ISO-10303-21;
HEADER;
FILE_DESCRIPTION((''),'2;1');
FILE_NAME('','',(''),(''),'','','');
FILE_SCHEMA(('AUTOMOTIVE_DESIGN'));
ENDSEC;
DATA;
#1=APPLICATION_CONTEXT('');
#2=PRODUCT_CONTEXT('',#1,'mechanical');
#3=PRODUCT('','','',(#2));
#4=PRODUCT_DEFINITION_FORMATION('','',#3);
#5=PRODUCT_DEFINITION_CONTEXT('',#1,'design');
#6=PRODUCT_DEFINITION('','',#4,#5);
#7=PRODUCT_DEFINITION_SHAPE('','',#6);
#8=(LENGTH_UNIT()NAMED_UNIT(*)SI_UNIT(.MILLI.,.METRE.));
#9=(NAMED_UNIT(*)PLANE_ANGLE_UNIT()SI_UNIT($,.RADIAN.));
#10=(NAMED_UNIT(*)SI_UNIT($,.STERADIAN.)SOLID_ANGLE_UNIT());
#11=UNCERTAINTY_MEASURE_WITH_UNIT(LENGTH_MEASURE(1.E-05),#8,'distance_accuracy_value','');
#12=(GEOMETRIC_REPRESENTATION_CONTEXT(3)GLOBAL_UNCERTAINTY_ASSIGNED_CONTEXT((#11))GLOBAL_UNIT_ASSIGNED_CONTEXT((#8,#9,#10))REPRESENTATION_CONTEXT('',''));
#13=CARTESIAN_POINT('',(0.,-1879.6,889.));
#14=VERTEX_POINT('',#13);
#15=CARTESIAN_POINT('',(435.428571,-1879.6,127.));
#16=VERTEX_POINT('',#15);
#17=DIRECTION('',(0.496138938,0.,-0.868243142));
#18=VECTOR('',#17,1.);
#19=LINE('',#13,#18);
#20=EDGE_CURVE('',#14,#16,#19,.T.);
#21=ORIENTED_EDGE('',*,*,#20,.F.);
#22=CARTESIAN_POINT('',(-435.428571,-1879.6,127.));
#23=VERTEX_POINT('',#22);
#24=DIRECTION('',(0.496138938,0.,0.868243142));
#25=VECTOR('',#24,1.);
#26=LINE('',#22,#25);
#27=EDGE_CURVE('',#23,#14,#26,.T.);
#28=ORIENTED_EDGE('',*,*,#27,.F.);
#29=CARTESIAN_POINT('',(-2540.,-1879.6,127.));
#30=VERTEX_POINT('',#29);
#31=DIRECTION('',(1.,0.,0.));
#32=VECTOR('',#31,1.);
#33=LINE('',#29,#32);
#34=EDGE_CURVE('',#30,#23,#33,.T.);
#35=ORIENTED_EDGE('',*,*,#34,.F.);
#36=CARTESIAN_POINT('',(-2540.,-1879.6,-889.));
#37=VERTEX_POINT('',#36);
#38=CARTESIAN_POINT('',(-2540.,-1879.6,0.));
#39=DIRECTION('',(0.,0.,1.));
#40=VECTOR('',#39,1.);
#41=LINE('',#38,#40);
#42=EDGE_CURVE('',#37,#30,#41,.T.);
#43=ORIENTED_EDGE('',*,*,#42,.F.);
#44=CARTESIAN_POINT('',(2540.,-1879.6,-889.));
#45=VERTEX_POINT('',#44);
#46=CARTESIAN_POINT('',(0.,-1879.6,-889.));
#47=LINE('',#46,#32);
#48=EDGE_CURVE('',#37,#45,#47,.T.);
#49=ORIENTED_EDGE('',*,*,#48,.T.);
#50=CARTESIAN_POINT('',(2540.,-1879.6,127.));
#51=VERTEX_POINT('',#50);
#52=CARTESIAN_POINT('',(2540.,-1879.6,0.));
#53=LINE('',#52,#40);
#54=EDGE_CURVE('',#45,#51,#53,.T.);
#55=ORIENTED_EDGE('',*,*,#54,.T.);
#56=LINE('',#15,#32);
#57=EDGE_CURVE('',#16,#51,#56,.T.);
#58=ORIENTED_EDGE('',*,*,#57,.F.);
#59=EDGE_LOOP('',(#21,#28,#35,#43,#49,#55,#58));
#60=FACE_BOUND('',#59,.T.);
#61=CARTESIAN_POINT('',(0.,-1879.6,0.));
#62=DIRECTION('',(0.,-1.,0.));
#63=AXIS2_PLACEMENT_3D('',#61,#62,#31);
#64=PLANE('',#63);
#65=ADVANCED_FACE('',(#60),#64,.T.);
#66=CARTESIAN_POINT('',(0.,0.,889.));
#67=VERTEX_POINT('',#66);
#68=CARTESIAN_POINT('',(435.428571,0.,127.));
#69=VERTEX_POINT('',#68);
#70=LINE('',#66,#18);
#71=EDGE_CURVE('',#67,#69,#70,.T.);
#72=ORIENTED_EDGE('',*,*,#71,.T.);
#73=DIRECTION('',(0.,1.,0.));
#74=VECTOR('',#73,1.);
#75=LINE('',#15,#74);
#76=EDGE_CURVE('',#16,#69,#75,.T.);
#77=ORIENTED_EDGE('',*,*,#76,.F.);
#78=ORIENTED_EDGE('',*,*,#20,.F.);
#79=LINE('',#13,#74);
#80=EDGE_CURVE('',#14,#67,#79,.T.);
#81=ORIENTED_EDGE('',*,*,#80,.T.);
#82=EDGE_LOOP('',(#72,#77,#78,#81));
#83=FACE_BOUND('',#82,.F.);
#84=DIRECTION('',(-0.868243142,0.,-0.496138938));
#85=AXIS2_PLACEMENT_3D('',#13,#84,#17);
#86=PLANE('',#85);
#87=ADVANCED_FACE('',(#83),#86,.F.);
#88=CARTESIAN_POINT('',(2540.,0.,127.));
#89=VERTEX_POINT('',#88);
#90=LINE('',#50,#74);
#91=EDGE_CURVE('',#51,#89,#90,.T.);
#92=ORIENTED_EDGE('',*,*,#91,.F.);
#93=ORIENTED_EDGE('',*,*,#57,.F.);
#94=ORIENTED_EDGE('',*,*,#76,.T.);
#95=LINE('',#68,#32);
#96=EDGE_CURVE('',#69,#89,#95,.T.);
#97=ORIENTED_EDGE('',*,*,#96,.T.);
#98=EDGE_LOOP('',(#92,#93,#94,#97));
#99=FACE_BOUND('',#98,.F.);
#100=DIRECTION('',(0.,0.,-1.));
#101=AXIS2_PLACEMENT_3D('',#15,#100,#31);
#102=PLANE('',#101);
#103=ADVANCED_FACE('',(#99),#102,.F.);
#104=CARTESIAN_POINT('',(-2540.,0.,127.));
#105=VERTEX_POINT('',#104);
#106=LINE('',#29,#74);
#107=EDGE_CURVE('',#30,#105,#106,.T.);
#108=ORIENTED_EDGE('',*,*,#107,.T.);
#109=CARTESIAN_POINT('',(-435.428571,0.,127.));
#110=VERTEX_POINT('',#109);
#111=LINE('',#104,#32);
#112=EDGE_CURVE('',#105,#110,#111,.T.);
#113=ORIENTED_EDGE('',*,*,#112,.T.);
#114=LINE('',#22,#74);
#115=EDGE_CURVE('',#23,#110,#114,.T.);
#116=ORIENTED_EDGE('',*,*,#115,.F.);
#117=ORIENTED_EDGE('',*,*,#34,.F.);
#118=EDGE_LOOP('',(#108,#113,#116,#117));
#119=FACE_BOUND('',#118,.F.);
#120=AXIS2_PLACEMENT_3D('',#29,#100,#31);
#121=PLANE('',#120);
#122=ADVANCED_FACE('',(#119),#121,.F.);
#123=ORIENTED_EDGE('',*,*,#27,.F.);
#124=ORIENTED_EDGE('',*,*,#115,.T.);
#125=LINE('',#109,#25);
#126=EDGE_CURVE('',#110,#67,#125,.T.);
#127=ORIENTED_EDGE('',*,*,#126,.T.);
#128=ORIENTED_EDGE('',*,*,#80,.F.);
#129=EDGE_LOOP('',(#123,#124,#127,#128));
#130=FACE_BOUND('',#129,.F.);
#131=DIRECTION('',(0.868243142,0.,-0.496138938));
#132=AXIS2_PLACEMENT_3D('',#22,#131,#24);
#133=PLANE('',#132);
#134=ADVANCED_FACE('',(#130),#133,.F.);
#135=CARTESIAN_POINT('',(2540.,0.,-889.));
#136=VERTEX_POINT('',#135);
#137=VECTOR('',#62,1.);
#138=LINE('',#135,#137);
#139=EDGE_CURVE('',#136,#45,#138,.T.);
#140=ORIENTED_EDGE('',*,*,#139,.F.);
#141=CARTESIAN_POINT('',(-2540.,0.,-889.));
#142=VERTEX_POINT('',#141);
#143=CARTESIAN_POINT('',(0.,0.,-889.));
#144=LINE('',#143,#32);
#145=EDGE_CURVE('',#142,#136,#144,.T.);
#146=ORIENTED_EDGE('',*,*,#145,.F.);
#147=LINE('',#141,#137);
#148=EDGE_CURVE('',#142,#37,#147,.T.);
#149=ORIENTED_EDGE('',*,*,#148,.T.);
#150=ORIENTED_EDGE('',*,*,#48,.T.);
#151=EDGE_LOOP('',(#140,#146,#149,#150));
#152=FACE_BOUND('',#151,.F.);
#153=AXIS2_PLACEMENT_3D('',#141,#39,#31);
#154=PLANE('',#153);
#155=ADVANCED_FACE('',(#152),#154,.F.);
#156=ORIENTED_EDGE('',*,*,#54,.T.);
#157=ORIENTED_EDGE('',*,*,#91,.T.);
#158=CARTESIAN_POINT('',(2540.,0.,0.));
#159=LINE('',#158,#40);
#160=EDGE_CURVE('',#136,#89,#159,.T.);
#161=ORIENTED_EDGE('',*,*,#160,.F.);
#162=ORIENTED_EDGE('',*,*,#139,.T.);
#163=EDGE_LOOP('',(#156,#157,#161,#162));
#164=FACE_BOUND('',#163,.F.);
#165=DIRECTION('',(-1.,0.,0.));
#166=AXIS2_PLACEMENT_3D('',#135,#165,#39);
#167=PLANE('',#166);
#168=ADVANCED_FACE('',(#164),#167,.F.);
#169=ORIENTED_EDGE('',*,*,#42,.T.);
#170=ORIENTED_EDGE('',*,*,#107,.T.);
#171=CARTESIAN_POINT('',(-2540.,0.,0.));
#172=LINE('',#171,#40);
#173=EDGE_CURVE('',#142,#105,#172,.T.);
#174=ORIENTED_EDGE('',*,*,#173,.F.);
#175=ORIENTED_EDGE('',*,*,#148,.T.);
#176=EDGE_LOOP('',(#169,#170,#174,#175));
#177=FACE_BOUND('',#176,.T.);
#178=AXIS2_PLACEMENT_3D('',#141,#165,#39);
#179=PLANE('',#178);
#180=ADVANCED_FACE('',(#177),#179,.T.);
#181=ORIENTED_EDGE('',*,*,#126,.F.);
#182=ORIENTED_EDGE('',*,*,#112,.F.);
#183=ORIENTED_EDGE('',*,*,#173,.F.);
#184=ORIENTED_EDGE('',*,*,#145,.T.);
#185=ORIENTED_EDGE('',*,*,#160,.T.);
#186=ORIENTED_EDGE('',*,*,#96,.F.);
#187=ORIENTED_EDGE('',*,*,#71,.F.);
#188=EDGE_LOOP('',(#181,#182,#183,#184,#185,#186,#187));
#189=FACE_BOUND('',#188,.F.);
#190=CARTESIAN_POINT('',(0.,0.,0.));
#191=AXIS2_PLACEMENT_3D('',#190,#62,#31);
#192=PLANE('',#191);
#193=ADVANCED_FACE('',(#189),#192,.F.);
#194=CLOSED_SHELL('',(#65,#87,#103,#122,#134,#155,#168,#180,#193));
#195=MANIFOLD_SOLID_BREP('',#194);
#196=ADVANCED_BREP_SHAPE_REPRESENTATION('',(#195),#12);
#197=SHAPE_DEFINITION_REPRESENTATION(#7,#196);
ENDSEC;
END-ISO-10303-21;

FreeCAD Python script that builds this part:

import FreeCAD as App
import Part
import Sketcher
from FreeCAD import Vector
Q = App.Units.Quantity


def add_polygon(sketch, points):
    """Adds a closed chain of lines whose ends are joined by coincident constraints."""
    first, n = sketch.GeometryCount, len(points)
    for a, b in zip(points, points[1:] + points[:1]):
        sketch.addGeometry(Part.LineSegment(App.Vector(*a, 0), App.Vector(*b, 0)), False)
    for i in range(n):
        sketch.addConstraint(Sketcher.Constraint("Coincident", first + i, 2, first + (i + 1) % n, 1))

doc = App.newDocument("Part")
body = doc.addObject("PartDesign::Body", "Body")

sketch1 = body.newObject("Sketcher::SketchObject", "Sketch")
sketch1.AttachmentSupport = (doc.getObject("XZ_Plane"), [""])
sketch1.MapMode = "FlatFace"
add_polygon(sketch1, [(-2540, 889), (-2540, -889), (2540, -889), (2540, 889)])
sketch1.addConstraint([
    Sketcher.Constraint("Vertical", 0),
    Sketcher.Constraint("Horizontal", 1),
    Sketcher.Constraint("Vertical", 2),
    Sketcher.Constraint("Horizontal", 3),
    Sketcher.Constraint("Symmetric", 0, 2, 2, 2, -1, 1),
    Sketcher.Constraint("DistanceX", 1, 1, 1, 2, Q("200 in")),
    Sketcher.Constraint("DistanceY", 0, 2, 0, 1, Q("70 in")),
])
pad1 = body.newObject("PartDesign::Pad", "Pad")
pad1.Profile = sketch1
pad1.Length = Q("74 in")

sketch2 = body.newObject("Sketcher::SketchObject", "Sketch001")
sketch2.AttachmentSupport = (doc.getObject("XZ_Plane"), [""])
sketch2.MapMode = "FlatFace"
sketch2.AttachmentOffset = App.Placement(Vector(0, 0, 74 * 25.4), App.Rotation())
add_polygon(sketch2, [(-2540, 889), (-2540, 127), (-435, 127), (0, 889)])
add_polygon(sketch2, [(0, 889), (435, 127), (2540, 127), (2540, 889)])
sketch2.addConstraint([
    Sketcher.Constraint("Vertical", 0),
    Sketcher.Constraint("Horizontal", 1),
    Sketcher.Constraint("Horizontal", 3),
    Sketcher.Constraint("Horizontal", 5),
    Sketcher.Constraint("Vertical", 6),
    Sketcher.Constraint("Horizontal", 7),
    Sketcher.Constraint("Coincident", 7, 2, 2, 2),
    Sketcher.Constraint("Symmetric", 1, 2, 4, 2, -2),
    Sketcher.Constraint("PointOnObject", 2, 2, -2),
    Sketcher.Constraint("Equal", 1, 5),
    Sketcher.Constraint("DistanceX", 3, 2, 3, 1, Q("100 in")),
    Sketcher.Constraint("DistanceY", 0, 2, 0, 1, Q("30 in")),
    Sketcher.Constraint("DistanceY", -1, 1, 0, 2, Q("5 in")),
    Sketcher.Constraint("DistanceX", 1, 1, 1, 2, Q("2104.571429 mm")),
])
pocket1 = body.newObject("PartDesign::Pocket", "Pocket")
pocket1.Profile = sketch2
pocket1.Length = Q("74 in")

doc.recompute()
